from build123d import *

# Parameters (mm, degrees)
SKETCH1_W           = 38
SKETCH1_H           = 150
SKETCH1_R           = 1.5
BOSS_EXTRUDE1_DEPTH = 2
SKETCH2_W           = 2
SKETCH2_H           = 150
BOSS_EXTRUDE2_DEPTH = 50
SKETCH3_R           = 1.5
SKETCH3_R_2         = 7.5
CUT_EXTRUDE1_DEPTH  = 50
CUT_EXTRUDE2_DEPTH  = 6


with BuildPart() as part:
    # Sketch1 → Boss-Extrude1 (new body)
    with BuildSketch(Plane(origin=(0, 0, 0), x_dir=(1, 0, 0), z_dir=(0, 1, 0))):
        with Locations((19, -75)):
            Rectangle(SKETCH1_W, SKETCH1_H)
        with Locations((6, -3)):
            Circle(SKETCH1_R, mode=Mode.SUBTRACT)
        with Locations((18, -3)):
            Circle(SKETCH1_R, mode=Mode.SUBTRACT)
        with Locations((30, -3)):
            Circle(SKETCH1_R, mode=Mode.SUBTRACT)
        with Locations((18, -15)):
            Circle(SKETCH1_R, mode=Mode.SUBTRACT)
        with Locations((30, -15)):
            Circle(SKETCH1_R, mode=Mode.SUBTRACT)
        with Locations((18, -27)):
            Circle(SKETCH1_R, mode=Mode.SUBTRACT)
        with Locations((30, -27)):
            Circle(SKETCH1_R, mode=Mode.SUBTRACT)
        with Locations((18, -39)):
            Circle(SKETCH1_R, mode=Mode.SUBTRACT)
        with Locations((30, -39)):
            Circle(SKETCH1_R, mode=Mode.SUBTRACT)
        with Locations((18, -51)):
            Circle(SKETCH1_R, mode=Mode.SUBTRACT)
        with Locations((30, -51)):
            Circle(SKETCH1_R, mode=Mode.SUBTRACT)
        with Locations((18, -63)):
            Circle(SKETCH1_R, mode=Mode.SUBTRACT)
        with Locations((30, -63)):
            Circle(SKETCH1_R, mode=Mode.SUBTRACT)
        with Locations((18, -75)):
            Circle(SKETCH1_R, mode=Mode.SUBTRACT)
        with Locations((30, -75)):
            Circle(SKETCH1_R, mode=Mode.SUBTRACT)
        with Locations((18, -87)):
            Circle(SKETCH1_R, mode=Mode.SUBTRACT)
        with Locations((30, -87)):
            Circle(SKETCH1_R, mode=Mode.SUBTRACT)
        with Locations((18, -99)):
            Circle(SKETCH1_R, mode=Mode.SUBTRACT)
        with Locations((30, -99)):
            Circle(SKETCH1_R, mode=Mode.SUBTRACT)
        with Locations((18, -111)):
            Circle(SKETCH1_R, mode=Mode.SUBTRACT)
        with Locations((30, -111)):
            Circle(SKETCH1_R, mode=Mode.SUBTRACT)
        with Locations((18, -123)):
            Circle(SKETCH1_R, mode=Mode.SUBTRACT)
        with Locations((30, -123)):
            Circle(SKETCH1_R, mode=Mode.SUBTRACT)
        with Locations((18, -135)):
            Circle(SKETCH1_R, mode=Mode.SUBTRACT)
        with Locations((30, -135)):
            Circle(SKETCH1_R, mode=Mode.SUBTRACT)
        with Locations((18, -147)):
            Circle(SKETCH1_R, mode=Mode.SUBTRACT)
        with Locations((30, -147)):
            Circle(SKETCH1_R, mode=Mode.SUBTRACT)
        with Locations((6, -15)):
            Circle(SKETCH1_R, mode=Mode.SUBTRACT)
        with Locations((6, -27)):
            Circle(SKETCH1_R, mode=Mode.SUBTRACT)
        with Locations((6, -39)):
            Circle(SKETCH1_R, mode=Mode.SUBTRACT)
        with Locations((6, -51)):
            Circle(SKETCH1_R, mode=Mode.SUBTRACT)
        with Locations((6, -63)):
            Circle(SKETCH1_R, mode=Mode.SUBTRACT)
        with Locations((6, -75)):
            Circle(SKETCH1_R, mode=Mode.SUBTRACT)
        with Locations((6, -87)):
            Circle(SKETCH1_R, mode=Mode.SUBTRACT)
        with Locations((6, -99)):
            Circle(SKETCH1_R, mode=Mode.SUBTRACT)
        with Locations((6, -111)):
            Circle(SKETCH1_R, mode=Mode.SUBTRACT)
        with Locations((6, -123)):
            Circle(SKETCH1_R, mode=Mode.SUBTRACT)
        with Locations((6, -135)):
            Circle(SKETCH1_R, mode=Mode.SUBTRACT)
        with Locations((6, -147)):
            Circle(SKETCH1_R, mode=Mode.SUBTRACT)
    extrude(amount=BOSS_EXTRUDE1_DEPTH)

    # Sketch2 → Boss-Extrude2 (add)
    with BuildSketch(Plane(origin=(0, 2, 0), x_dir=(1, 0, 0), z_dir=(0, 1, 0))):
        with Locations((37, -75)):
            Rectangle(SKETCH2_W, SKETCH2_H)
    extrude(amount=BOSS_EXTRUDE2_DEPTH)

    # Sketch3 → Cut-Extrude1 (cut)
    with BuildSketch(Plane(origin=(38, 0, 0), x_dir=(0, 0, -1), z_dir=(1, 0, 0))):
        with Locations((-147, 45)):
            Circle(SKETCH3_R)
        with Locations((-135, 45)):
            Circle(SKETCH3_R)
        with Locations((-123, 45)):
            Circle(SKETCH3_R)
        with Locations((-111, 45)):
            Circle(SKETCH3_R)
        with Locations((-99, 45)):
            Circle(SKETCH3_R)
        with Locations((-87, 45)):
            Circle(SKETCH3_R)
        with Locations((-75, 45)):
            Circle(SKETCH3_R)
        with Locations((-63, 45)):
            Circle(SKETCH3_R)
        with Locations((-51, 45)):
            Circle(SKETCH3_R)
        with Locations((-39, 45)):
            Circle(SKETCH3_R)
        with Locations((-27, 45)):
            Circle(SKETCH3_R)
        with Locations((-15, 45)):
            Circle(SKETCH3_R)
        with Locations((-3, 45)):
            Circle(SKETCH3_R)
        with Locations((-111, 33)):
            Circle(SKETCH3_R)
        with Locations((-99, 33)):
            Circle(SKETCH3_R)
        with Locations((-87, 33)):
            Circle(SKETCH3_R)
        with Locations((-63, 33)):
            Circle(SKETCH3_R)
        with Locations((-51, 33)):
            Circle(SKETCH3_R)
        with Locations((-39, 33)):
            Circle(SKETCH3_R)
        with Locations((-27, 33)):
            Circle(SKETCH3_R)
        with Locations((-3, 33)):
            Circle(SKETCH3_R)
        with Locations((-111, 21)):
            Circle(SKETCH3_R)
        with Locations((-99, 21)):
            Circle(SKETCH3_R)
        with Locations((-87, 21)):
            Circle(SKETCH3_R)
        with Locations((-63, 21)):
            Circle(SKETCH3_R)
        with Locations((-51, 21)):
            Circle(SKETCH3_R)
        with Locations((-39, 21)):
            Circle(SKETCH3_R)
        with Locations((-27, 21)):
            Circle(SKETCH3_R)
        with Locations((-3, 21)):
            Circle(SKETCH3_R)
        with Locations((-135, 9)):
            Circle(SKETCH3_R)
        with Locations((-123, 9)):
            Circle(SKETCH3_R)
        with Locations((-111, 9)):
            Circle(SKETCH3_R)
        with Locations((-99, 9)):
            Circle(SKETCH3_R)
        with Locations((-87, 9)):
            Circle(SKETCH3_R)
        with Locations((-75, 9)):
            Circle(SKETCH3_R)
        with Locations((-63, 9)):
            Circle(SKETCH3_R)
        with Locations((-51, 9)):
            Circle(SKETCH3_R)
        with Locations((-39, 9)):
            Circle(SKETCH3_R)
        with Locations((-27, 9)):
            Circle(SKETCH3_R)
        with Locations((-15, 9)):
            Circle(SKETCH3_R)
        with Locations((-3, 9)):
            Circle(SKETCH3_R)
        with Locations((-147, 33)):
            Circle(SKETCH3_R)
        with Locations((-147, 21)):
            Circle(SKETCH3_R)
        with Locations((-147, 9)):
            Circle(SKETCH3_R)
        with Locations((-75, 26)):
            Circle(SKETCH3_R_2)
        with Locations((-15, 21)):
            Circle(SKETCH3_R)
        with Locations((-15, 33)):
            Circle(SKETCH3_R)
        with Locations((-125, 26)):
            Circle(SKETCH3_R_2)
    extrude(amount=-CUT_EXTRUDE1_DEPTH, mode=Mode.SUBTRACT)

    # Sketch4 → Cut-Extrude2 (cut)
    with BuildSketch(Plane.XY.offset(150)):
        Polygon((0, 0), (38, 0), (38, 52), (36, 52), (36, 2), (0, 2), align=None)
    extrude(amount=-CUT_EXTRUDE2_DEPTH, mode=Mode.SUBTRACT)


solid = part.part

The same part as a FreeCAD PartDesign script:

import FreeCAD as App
import Part
import Sketcher
Q = App.Units.Quantity

doc = App.newDocument("Part")
body = doc.addObject("PartDesign::Body", "Body")

# Sketch on XZ plane
sketch1 = body.newObject("Sketcher::SketchObject", "Sketch")
sketch1.AttachmentSupport = (doc.getObject("XZ_Plane"), [""])
sketch1.MapMode = "FlatFace"
sketch1.addGeometry(Part.LineSegment(App.Vector(0, 0, 0), App.Vector(0, 150, 0)), False)
sketch1.addGeometry(Part.LineSegment(App.Vector(0, 150, 0), App.Vector(38, 150, 0)), False)
sketch1.addGeometry(Part.LineSegment(App.Vector(38, 150, 0), App.Vector(38, 0, 0)), False)
sketch1.addGeometry(Part.LineSegment(App.Vector(38, 0, 0), App.Vector(0, 0, 0)), False)
sketch1.addGeometry(Part.Circle(App.Vector(6, 147, 0), App.Vector(0, 0, 1), 1.5), False)
sketch1.addGeometry(Part.Circle(App.Vector(6, 135, 0), App.Vector(0, 0, 1), 1.5), False)
sketch1.addGeometry(Part.Circle(App.Vector(6, 123, 0), App.Vector(0, 0, 1), 1.5), False)
sketch1.addGeometry(Part.Circle(App.Vector(6, 111, 0), App.Vector(0, 0, 1), 1.5), False)
sketch1.addGeometry(Part.Circle(App.Vector(6, 99, 0), App.Vector(0, 0, 1), 1.5), False)
sketch1.addGeometry(Part.Circle(App.Vector(6, 87, 0), App.Vector(0, 0, 1), 1.5), False)
sketch1.addGeometry(Part.Circle(App.Vector(18, 147, 0), App.Vector(0, 0, 1), 1.5), False)
sketch1.addGeometry(Part.Circle(App.Vector(18, 135, 0), App.Vector(0, 0, 1), 1.5), False)
sketch1.addGeometry(Part.Circle(App.Vector(18, 123, 0), App.Vector(0, 0, 1), 1.5), False)
sketch1.addGeometry(Part.Circle(App.Vector(30, 147, 0), App.Vector(0, 0, 1), 1.5), False)
sketch1.addGeometry(Part.Circle(App.Vector(30, 135, 0), App.Vector(0, 0, 1), 1.5), False)
sketch1.addGeometry(Part.Circle(App.Vector(30, 123, 0), App.Vector(0, 0, 1), 1.5), False)
sketch1.addGeometry(Part.Circle(App.Vector(18, 111, 0), App.Vector(0, 0, 1), 1.5), False)
sketch1.addGeometry(Part.Circle(App.Vector(18, 99, 0), App.Vector(0, 0, 1), 1.5), False)
sketch1.addGeometry(Part.Circle(App.Vector(18, 87, 0), App.Vector(0, 0, 1), 1.5), False)
sketch1.addGeometry(Part.Circle(App.Vector(30, 111, 0), App.Vector(0, 0, 1), 1.5), False)
sketch1.addGeometry(Part.Circle(App.Vector(30, 99, 0), App.Vector(0, 0, 1), 1.5), False)
sketch1.addGeometry(Part.Circle(App.Vector(30, 87, 0), App.Vector(0, 0, 1), 1.5), False)
sketch1.addGeometry(Part.Circle(App.Vector(6, 75, 0), App.Vector(0, 0, 1), 1.5), False)
sketch1.addGeometry(Part.Circle(App.Vector(6, 63, 0), App.Vector(0, 0, 1), 1.5), False)
sketch1.addGeometry(Part.Circle(App.Vector(6, 51, 0), App.Vector(0, 0, 1), 1.5), False)
sketch1.addGeometry(Part.Circle(App.Vector(6, 39, 0), App.Vector(0, 0, 1), 1.5), False)
sketch1.addGeometry(Part.Circle(App.Vector(6, 27, 0), App.Vector(0, 0, 1), 1.5), False)
sketch1.addGeometry(Part.Circle(App.Vector(6, 15, 0), App.Vector(0, 0, 1), 1.5), False)
sketch1.addGeometry(Part.Circle(App.Vector(6, 3, 0), App.Vector(0, 0, 1), 1.5), False)
sketch1.addGeometry(Part.Circle(App.Vector(18, 75, 0), App.Vector(0, 0, 1), 1.5), False)
sketch1.addGeometry(Part.Circle(App.Vector(18, 63, 0), App.Vector(0, 0, 1), 1.5), False)
sketch1.addGeometry(Part.Circle(App.Vector(18, 51, 0), App.Vector(0, 0, 1), 1.5), False)
sketch1.addGeometry(Part.Circle(App.Vector(18, 39, 0), App.Vector(0, 0, 1), 1.5), False)
sketch1.addGeometry(Part.Circle(App.Vector(30, 75, 0), App.Vector(0, 0, 1), 1.5), False)
sketch1.addGeometry(Part.Circle(App.Vector(30, 63, 0), App.Vector(0, 0, 1), 1.5), False)
sketch1.addGeometry(Part.Circle(App.Vector(30, 51, 0), App.Vector(0, 0, 1), 1.5), False)
sketch1.addGeometry(Part.Circle(App.Vector(30, 39, 0), App.Vector(0, 0, 1), 1.5), False)
sketch1.addGeometry(Part.Circle(App.Vector(18, 27, 0), App.Vector(0, 0, 1), 1.5), False)
sketch1.addGeometry(Part.Circle(App.Vector(18, 15, 0), App.Vector(0, 0, 1), 1.5), False)
sketch1.addGeometry(Part.Circle(App.Vector(18, 3, 0), App.Vector(0, 0, 1), 1.5), False)
sketch1.addGeometry(Part.Circle(App.Vector(30, 27, 0), App.Vector(0, 0, 1), 1.5), False)
sketch1.addGeometry(Part.Circle(App.Vector(30, 15, 0), App.Vector(0, 0, 1), 1.5), False)
sketch1.addGeometry(Part.Circle(App.Vector(30, 3, 0), App.Vector(0, 0, 1), 1.5), False)
sketch1.addConstraint(Sketcher.Constraint("Coincident", 0, 2, 1, 1))
sketch1.addConstraint(Sketcher.Constraint("Coincident", 1, 2, 2, 1))
sketch1.addConstraint(Sketcher.Constraint("Coincident", 2, 2, 3, 1))
sketch1.addConstraint(Sketcher.Constraint("Coincident", 3, 2, 0, 1))
sketch1.addConstraint(Sketcher.Constraint("Vertical", 0))
sketch1.addConstraint(Sketcher.Constraint("Horizontal", 1))
sketch1.addConstraint(Sketcher.Constraint("Vertical", 2))
sketch1.addConstraint(Sketcher.Constraint("Horizontal", 3))
sketch1.addConstraint(Sketcher.Constraint("Coincident", 3, 2, -1, 1))
sketch1.addConstraint(Sketcher.Constraint("Equal", 4, 5))
sketch1.addConstraint(Sketcher.Constraint("Equal", 5, 6))
sketch1.addConstraint(Sketcher.Constraint("Equal", 6, 7))
sketch1.addConstraint(Sketcher.Constraint("Equal", 7, 8))
sketch1.addConstraint(Sketcher.Constraint("Equal", 8, 9))
sketch1.addConstraint(Sketcher.Constraint("Equal", 9, 10))
sketch1.addConstraint(Sketcher.Constraint("Equal", 10, 11))
sketch1.addConstraint(Sketcher.Constraint("Equal", 11, 12))
sketch1.addConstraint(Sketcher.Constraint("Equal", 12, 13))
sketch1.addConstraint(Sketcher.Constraint("Equal", 13, 14))
sketch1.addConstraint(Sketcher.Constraint("Equal", 14, 15))
sketch1.addConstraint(Sketcher.Constraint("Equal", 15, 16))
sketch1.addConstraint(Sketcher.Constraint("Equal", 16, 17))
sketch1.addConstraint(Sketcher.Constraint("Equal", 17, 18))
sketch1.addConstraint(Sketcher.Constraint("Equal", 18, 19))
sketch1.addConstraint(Sketcher.Constraint("Equal", 19, 20))
sketch1.addConstraint(Sketcher.Constraint("Equal", 20, 21))
sketch1.addConstraint(Sketcher.Constraint("Equal", 21, 22))
sketch1.addConstraint(Sketcher.Constraint("Equal", 22, 23))
sketch1.addConstraint(Sketcher.Constraint("Equal", 23, 24))
sketch1.addConstraint(Sketcher.Constraint("Equal", 24, 25))
sketch1.addConstraint(Sketcher.Constraint("Equal", 25, 26))
sketch1.addConstraint(Sketcher.Constraint("Equal", 26, 27))
sketch1.addConstraint(Sketcher.Constraint("Equal", 27, 28))
sketch1.addConstraint(Sketcher.Constraint("Equal", 28, 29))
sketch1.addConstraint(Sketcher.Constraint("Equal", 29, 30))
sketch1.addConstraint(Sketcher.Constraint("Equal", 30, 31))
sketch1.addConstraint(Sketcher.Constraint("Equal", 31, 32))
sketch1.addConstraint(Sketcher.Constraint("Equal", 32, 33))
sketch1.addConstraint(Sketcher.Constraint("Equal", 33, 34))
sketch1.addConstraint(Sketcher.Constraint("Equal", 34, 35))
sketch1.addConstraint(Sketcher.Constraint("Equal", 35, 36))
sketch1.addConstraint(Sketcher.Constraint("Equal", 36, 37))
sketch1.addConstraint(Sketcher.Constraint("Equal", 37, 38))
sketch1.addConstraint(Sketcher.Constraint("Equal", 38, 39))
sketch1.addConstraint(Sketcher.Constraint("Equal", 39, 40))
sketch1.addConstraint(Sketcher.Constraint("Equal", 40, 41))
sketch1.addConstraint(Sketcher.Constraint("Equal", 41, 42))
sketch1.addConstraint(Sketcher.Constraint("Horizontal", 4, 3, 10, 3))
sketch1.addConstraint(Sketcher.Constraint("Horizontal", 5, 3, 11, 3))
sketch1.addConstraint(Sketcher.Constraint("Horizontal", 6, 3, 12, 3))
sketch1.addConstraint(Sketcher.Constraint("Horizontal", 10, 3, 13, 3))
sketch1.addConstraint(Sketcher.Constraint("Horizontal", 11, 3, 14, 3))
sketch1.addConstraint(Sketcher.Constraint("Horizontal", 12, 3, 15, 3))
sketch1.addConstraint(Sketcher.Constraint("Horizontal", 7, 3, 16, 3))
sketch1.addConstraint(Sketcher.Constraint("Horizontal", 8, 3, 17, 3))
sketch1.addConstraint(Sketcher.Constraint("Horizontal", 9, 3, 18, 3))
sketch1.addConstraint(Sketcher.Constraint("Horizontal", 16, 3, 19, 3))
sketch1.addConstraint(Sketcher.Constraint("Horizontal", 17, 3, 20, 3))
sketch1.addConstraint(Sketcher.Constraint("Horizontal", 18, 3, 21, 3))
sketch1.addConstraint(Sketcher.Constraint("Horizontal", 22, 3, 29, 3))
sketch1.addConstraint(Sketcher.Constraint("Horizontal", 23, 3, 30, 3))
sketch1.addConstraint(Sketcher.Constraint("Horizontal", 24, 3, 31, 3))
sketch1.addConstraint(Sketcher.Constraint("Horizontal", 25, 3, 32, 3))
sketch1.addConstraint(Sketcher.Constraint("Horizontal", 29, 3, 33, 3))
sketch1.addConstraint(Sketcher.Constraint("Horizontal", 30, 3, 34, 3))
sketch1.addConstraint(Sketcher.Constraint("Horizontal", 31, 3, 35, 3))
sketch1.addConstraint(Sketcher.Constraint("Horizontal", 32, 3, 36, 3))
sketch1.addConstraint(Sketcher.Constraint("Horizontal", 26, 3, 37, 3))
sketch1.addConstraint(Sketcher.Constraint("Horizontal", 27, 3, 38, 3))
sketch1.addConstraint(Sketcher.Constraint("Horizontal", 28, 3, 39, 3))
sketch1.addConstraint(Sketcher.Constraint("Horizontal", 37, 3, 40, 3))
sketch1.addConstraint(Sketcher.Constraint("Horizontal", 38, 3, 41, 3))
sketch1.addConstraint(Sketcher.Constraint("Horizontal", 39, 3, 42, 3))
sketch1.addConstraint(Sketcher.Constraint("Vertical", 4, 3, 5, 3))
sketch1.addConstraint(Sketcher.Constraint("Vertical", 5, 3, 6, 3))
sketch1.addConstraint(Sketcher.Constraint("Vertical", 6, 3, 7, 3))
sketch1.addConstraint(Sketcher.Constraint("Vertical", 7, 3, 8, 3))
sketch1.addConstraint(Sketcher.Constraint("Vertical", 8, 3, 9, 3))
sketch1.addConstraint(Sketcher.Constraint("Vertical", 10, 3, 11, 3))
sketch1.addConstraint(Sketcher.Constraint("Vertical", 11, 3, 12, 3))
sketch1.addConstraint(Sketcher.Constraint("Vertical", 13, 3, 14, 3))
sketch1.addConstraint(Sketcher.Constraint("Vertical", 14, 3, 15, 3))
sketch1.addConstraint(Sketcher.Constraint("Vertical", 12, 3, 16, 3))
sketch1.addConstraint(Sketcher.Constraint("Vertical", 16, 3, 17, 3))
sketch1.addConstraint(Sketcher.Constraint("Vertical", 17, 3, 18, 3))
sketch1.addConstraint(Sketcher.Constraint("Vertical", 15, 3, 19, 3))
sketch1.addConstraint(Sketcher.Constraint("Vertical", 19, 3, 20, 3))
sketch1.addConstraint(Sketcher.Constraint("Vertical", 20, 3, 21, 3))
sketch1.addConstraint(Sketcher.Constraint("Vertical", 9, 3, 22, 3))
sketch1.addConstraint(Sketcher.Constraint("Vertical", 22, 3, 23, 3))
sketch1.addConstraint(Sketcher.Constraint("Vertical", 23, 3, 24, 3))
sketch1.addConstraint(Sketcher.Constraint("Vertical", 24, 3, 25, 3))
sketch1.addConstraint(Sketcher.Constraint("Vertical", 25, 3, 26, 3))
sketch1.addConstraint(Sketcher.Constraint("Vertical", 26, 3, 27, 3))
sketch1.addConstraint(Sketcher.Constraint("Vertical", 27, 3, 28, 3))
sketch1.addConstraint(Sketcher.Constraint("Vertical", 18, 3, 29, 3))
sketch1.addConstraint(Sketcher.Constraint("Vertical", 29, 3, 30, 3))
sketch1.addConstraint(Sketcher.Constraint("Vertical", 30, 3, 31, 3))
sketch1.addConstraint(Sketcher.Constraint("Vertical", 31, 3, 32, 3))
sketch1.addConstraint(Sketcher.Constraint("Vertical", 21, 3, 33, 3))
sketch1.addConstraint(Sketcher.Constraint("Vertical", 33, 3, 34, 3))
sketch1.addConstraint(Sketcher.Constraint("Vertical", 34, 3, 35, 3))
sketch1.addConstraint(Sketcher.Constraint("Vertical", 35, 3, 36, 3))
sketch1.addConstraint(Sketcher.Constraint("Vertical", 32, 3, 37, 3))
sketch1.addConstraint(Sketcher.Constraint("Vertical", 37, 3, 38, 3))
sketch1.addConstraint(Sketcher.Constraint("Vertical", 38, 3, 39, 3))
sketch1.addConstraint(Sketcher.Constraint("Vertical", 36, 3, 40, 3))
sketch1.addConstraint(Sketcher.Constraint("Vertical", 40, 3, 41, 3))
sketch1.addConstraint(Sketcher.Constraint("Vertical", 41, 3, 42, 3))
sketch1.addConstraint(Sketcher.Constraint("Diameter", 4, Q("3 mm")))
sketch1.addConstraint(Sketcher.Constraint("DistanceX", 1, 1, 1, 2, Q("38 mm")))
sketch1.addConstraint(Sketcher.Constraint("DistanceY", 0, 1, 0, 2, Q("150 mm")))
sketch1.addConstraint(Sketcher.Constraint("DistanceX", -1, 1, 4, 3, Q("6 mm")))
sketch1.addConstraint(Sketcher.Constraint("DistanceY", -1, 1, 4, 3, Q("147 mm")))
sketch1.addConstraint(Sketcher.Constraint("DistanceY", -1, 1, 5, 3, Q("135 mm")))
sketch1.addConstraint(Sketcher.Constraint("DistanceY", -1, 1, 6, 3, Q("123 mm")))
sketch1.addConstraint(Sketcher.Constraint("DistanceY", -1, 1, 7, 3, Q("111 mm")))
sketch1.addConstraint(Sketcher.Constraint("DistanceY", -1, 1, 8, 3, Q("99 mm")))
sketch1.addConstraint(Sketcher.Constraint("DistanceY", -1, 1, 9, 3, Q("87 mm")))
sketch1.addConstraint(Sketcher.Constraint("DistanceX", -1, 1, 10, 3, Q("18 mm")))
sketch1.addConstraint(Sketcher.Constraint("DistanceX", -1, 1, 13, 3, Q("30 mm")))
sketch1.addConstraint(Sketcher.Constraint("DistanceY", -1, 1, 22, 3, Q("75 mm")))
sketch1.addConstraint(Sketcher.Constraint("DistanceY", -1, 1, 23, 3, Q("63 mm")))
sketch1.addConstraint(Sketcher.Constraint("DistanceY", -1, 1, 24, 3, Q("51 mm")))
sketch1.addConstraint(Sketcher.Constraint("DistanceY", -1, 1, 25, 3, Q("39 mm")))
sketch1.addConstraint(Sketcher.Constraint("DistanceY", -1, 1, 26, 3, Q("27 mm")))
sketch1.addConstraint(Sketcher.Constraint("DistanceY", -1, 1, 27, 3, Q("15 mm")))
sketch1.addConstraint(Sketcher.Constraint("DistanceY", -1, 1, 28, 3, Q("3 mm")))
pad1 = body.newObject("PartDesign::Pad", "Pad")
pad1.Profile = sketch1
pad1.Length = 2
pad1.Reversed = True

# Sketch on XZ plane
sketch2 = body.newObject("Sketcher::SketchObject", "Sketch001")
sketch2.AttachmentSupport = (doc.getObject("XZ_Plane"), [""])
sketch2.MapMode = "FlatFace"
sketch2.AttachmentOffset = App.Placement(App.Vector(0, 0, -2), App.Rotation())
sketch2.addGeometry(Part.LineSegment(App.Vector(36, 0, 0), App.Vector(36, 150, 0)), False)
sketch2.addGeometry(Part.LineSegment(App.Vector(36, 150, 0), App.Vector(38, 150, 0)), False)
sketch2.addGeometry(Part.LineSegment(App.Vector(38, 150, 0), App.Vector(38, 0, 0)), False)
sketch2.addGeometry(Part.LineSegment(App.Vector(38, 0, 0), App.Vector(36, 0, 0)), False)
sketch2.addConstraint(Sketcher.Constraint("Coincident", 0, 2, 1, 1))
sketch2.addConstraint(Sketcher.Constraint("Coincident", 1, 2, 2, 1))
sketch2.addConstraint(Sketcher.Constraint("Coincident", 2, 2, 3, 1))
sketch2.addConstraint(Sketcher.Constraint("Coincident", 3, 2, 0, 1))
sketch2.addConstraint(Sketcher.Constraint("Vertical", 0))
sketch2.addConstraint(Sketcher.Constraint("Horizontal", 1))
sketch2.addConstraint(Sketcher.Constraint("Vertical", 2))
sketch2.addConstraint(Sketcher.Constraint("Horizontal", 3))
sketch2.addConstraint(Sketcher.Constraint("PointOnObject", 2, 2, -1))
sketch2.addConstraint(Sketcher.Constraint("DistanceX", 1, 1, 1, 2, Q("2 mm")))
sketch2.addConstraint(Sketcher.Constraint("DistanceY", 0, 1, 0, 2, Q("150 mm")))
sketch2.addConstraint(Sketcher.Constraint("DistanceX", -1, 1, 0, 2, Q("36 mm")))
pad2 = body.newObject("PartDesign::Pad", "Pad001")
pad2.Profile = sketch2
pad2.Length = 50
pad2.Reversed = True

# Sketch on YZ plane
sketch3 = body.newObject("Sketcher::SketchObject", "Sketch002")
sketch3.AttachmentSupport = (doc.getObject("YZ_Plane"), [""])
sketch3.MapMode = "FlatFace"
sketch3.AttachmentOffset = App.Placement(App.Vector(0, 0, 38), App.Rotation())
sketch3.addGeometry(Part.Circle(App.Vector(45, 147, 0), App.Vector(0, 0, 1), 1.5), False)
sketch3.addGeometry(Part.Circle(App.Vector(45, 135, 0), App.Vector(0, 0, 1), 1.5), False)
sketch3.addGeometry(Part.Circle(App.Vector(45, 123, 0), App.Vector(0, 0, 1), 1.5), False)
sketch3.addGeometry(Part.Circle(App.Vector(45, 111, 0), App.Vector(0, 0, 1), 1.5), False)
sketch3.addGeometry(Part.Circle(App.Vector(45, 99, 0), App.Vector(0, 0, 1), 1.5), False)
sketch3.addGeometry(Part.Circle(App.Vector(45, 87, 0), App.Vector(0, 0, 1), 1.5), False)
sketch3.addGeometry(Part.Circle(App.Vector(45, 75, 0), App.Vector(0, 0, 1), 1.5), False)
sketch3.addGeometry(Part.Circle(App.Vector(45, 63, 0), App.Vector(0, 0, 1), 1.5), False)
sketch3.addGeometry(Part.Circle(App.Vector(45, 51, 0), App.Vector(0, 0, 1), 1.5), False)
sketch3.addGeometry(Part.Circle(App.Vector(45, 39, 0), App.Vector(0, 0, 1), 1.5), False)
sketch3.addGeometry(Part.Circle(App.Vector(45, 27, 0), App.Vector(0, 0, 1), 1.5), False)
sketch3.addGeometry(Part.Circle(App.Vector(45, 15, 0), App.Vector(0, 0, 1), 1.5), False)
sketch3.addGeometry(Part.Circle(App.Vector(45, 3, 0), App.Vector(0, 0, 1), 1.5), False)
sketch3.addGeometry(Part.Circle(App.Vector(33, 111, 0), App.Vector(0, 0, 1), 1.5), False)
sketch3.addGeometry(Part.Circle(App.Vector(33, 99, 0), App.Vector(0, 0, 1), 1.5), False)
sketch3.addGeometry(Part.Circle(App.Vector(33, 87, 0), App.Vector(0, 0, 1), 1.5), False)
sketch3.addGeometry(Part.Circle(App.Vector(33, 63, 0), App.Vector(0, 0, 1), 1.5), False)
sketch3.addGeometry(Part.Circle(App.Vector(33, 51, 0), App.Vector(0, 0, 1), 1.5), False)
sketch3.addGeometry(Part.Circle(App.Vector(33, 39, 0), App.Vector(0, 0, 1), 1.5), False)
sketch3.addGeometry(Part.Circle(App.Vector(33, 27, 0), App.Vector(0, 0, 1), 1.5), False)
sketch3.addGeometry(Part.Circle(App.Vector(33, 3, 0), App.Vector(0, 0, 1), 1.5), False)
sketch3.addGeometry(Part.Circle(App.Vector(21, 111, 0), App.Vector(0, 0, 1), 1.5), False)
sketch3.addGeometry(Part.Circle(App.Vector(21, 99, 0), App.Vector(0, 0, 1), 1.5), False)
sketch3.addGeometry(Part.Circle(App.Vector(21, 87, 0), App.Vector(0, 0, 1), 1.5), False)
sketch3.addGeometry(Part.Circle(App.Vector(21, 63, 0), App.Vector(0, 0, 1), 1.5), False)
sketch3.addGeometry(Part.Circle(App.Vector(21, 51, 0), App.Vector(0, 0, 1), 1.5), False)
sketch3.addGeometry(Part.Circle(App.Vector(21, 39, 0), App.Vector(0, 0, 1), 1.5), False)
sketch3.addGeometry(Part.Circle(App.Vector(21, 27, 0), App.Vector(0, 0, 1), 1.5), False)
sketch3.addGeometry(Part.Circle(App.Vector(21, 3, 0), App.Vector(0, 0, 1), 1.5), False)
sketch3.addGeometry(Part.Circle(App.Vector(9, 135, 0), App.Vector(0, 0, 1), 1.5), False)
sketch3.addGeometry(Part.Circle(App.Vector(9, 123, 0), App.Vector(0, 0, 1), 1.5), False)
sketch3.addGeometry(Part.Circle(App.Vector(9, 111, 0), App.Vector(0, 0, 1), 1.5), False)
sketch3.addGeometry(Part.Circle(App.Vector(9, 99, 0), App.Vector(0, 0, 1), 1.5), False)
sketch3.addGeometry(Part.Circle(App.Vector(9, 87, 0), App.Vector(0, 0, 1), 1.5), False)
sketch3.addGeometry(Part.Circle(App.Vector(9, 75, 0), App.Vector(0, 0, 1), 1.5), False)
sketch3.addGeometry(Part.Circle(App.Vector(9, 63, 0), App.Vector(0, 0, 1), 1.5), False)
sketch3.addGeometry(Part.Circle(App.Vector(9, 51, 0), App.Vector(0, 0, 1), 1.5), False)
sketch3.addGeometry(Part.Circle(App.Vector(9, 39, 0), App.Vector(0, 0, 1), 1.5), False)
sketch3.addGeometry(Part.Circle(App.Vector(9, 27, 0), App.Vector(0, 0, 1), 1.5), False)
sketch3.addGeometry(Part.Circle(App.Vector(9, 15, 0), App.Vector(0, 0, 1), 1.5), False)
sketch3.addGeometry(Part.Circle(App.Vector(9, 3, 0), App.Vector(0, 0, 1), 1.5), False)
sketch3.addGeometry(Part.Circle(App.Vector(33, 147, 0), App.Vector(0, 0, 1), 1.5), False)
sketch3.addGeometry(Part.Circle(App.Vector(21, 147, 0), App.Vector(0, 0, 1), 1.5), False)
sketch3.addGeometry(Part.Circle(App.Vector(9, 147, 0), App.Vector(0, 0, 1), 1.5), False)
sketch3.addGeometry(Part.Circle(App.Vector(26, 75, 0), App.Vector(0, 0, 1), 7.5), False)
sketch3.addGeometry(Part.Circle(App.Vector(21, 15, 0), App.Vector(0, 0, 1), 1.5), False)
sketch3.addGeometry(Part.Circle(App.Vector(33, 15, 0), App.Vector(0, 0, 1), 1.5), False)
sketch3.addGeometry(Part.Circle(App.Vector(26, 125, 0), App.Vector(0, 0, 1), 7.5), False)
sketch3.addConstraint(Sketcher.Constraint("Equal", 0, 1))
sketch3.addConstraint(Sketcher.Constraint("Equal", 1, 2))
sketch3.addConstraint(Sketcher.Constraint("Equal", 2, 3))
sketch3.addConstraint(Sketcher.Constraint("Equal", 3, 4))
sketch3.addConstraint(Sketcher.Constraint("Equal", 4, 5))
sketch3.addConstraint(Sketcher.Constraint("Equal", 5, 6))
sketch3.addConstraint(Sketcher.Constraint("Equal", 6, 7))
sketch3.addConstraint(Sketcher.Constraint("Equal", 7, 8))
sketch3.addConstraint(Sketcher.Constraint("Equal", 8, 9))
sketch3.addConstraint(Sketcher.Constraint("Equal", 9, 10))
sketch3.addConstraint(Sketcher.Constraint("Equal", 10, 11))
sketch3.addConstraint(Sketcher.Constraint("Equal", 11, 12))
sketch3.addConstraint(Sketcher.Constraint("Equal", 12, 13))
sketch3.addConstraint(Sketcher.Constraint("Equal", 13, 14))
sketch3.addConstraint(Sketcher.Constraint("Equal", 14, 15))
sketch3.addConstraint(Sketcher.Constraint("Equal", 15, 16))
sketch3.addConstraint(Sketcher.Constraint("Equal", 16, 17))
sketch3.addConstraint(Sketcher.Constraint("Equal", 17, 18))
sketch3.addConstraint(Sketcher.Constraint("Equal", 18, 19))
sketch3.addConstraint(Sketcher.Constraint("Equal", 19, 20))
sketch3.addConstraint(Sketcher.Constraint("Equal", 20, 21))
sketch3.addConstraint(Sketcher.Constraint("Equal", 21, 22))
sketch3.addConstraint(Sketcher.Constraint("Equal", 22, 23))
sketch3.addConstraint(Sketcher.Constraint("Equal", 23, 24))
sketch3.addConstraint(Sketcher.Constraint("Equal", 24, 25))
sketch3.addConstraint(Sketcher.Constraint("Equal", 25, 26))
sketch3.addConstraint(Sketcher.Constraint("Equal", 26, 27))
sketch3.addConstraint(Sketcher.Constraint("Equal", 27, 28))
sketch3.addConstraint(Sketcher.Constraint("Equal", 28, 29))
sketch3.addConstraint(Sketcher.Constraint("Equal", 29, 30))
sketch3.addConstraint(Sketcher.Constraint("Equal", 30, 31))
sketch3.addConstraint(Sketcher.Constraint("Equal", 31, 32))
sketch3.addConstraint(Sketcher.Constraint("Equal", 32, 33))
sketch3.addConstraint(Sketcher.Constraint("Equal", 33, 34))
sketch3.addConstraint(Sketcher.Constraint("Equal", 34, 35))
sketch3.addConstraint(Sketcher.Constraint("Equal", 35, 36))
sketch3.addConstraint(Sketcher.Constraint("Equal", 36, 37))
sketch3.addConstraint(Sketcher.Constraint("Equal", 37, 38))
sketch3.addConstraint(Sketcher.Constraint("Equal", 38, 39))
sketch3.addConstraint(Sketcher.Constraint("Equal", 39, 40))
sketch3.addConstraint(Sketcher.Constraint("Equal", 40, 41))
sketch3.addConstraint(Sketcher.Constraint("Equal", 41, 42))
sketch3.addConstraint(Sketcher.Constraint("Equal", 42, 43))
sketch3.addConstraint(Sketcher.Constraint("Equal", 43, 45))
sketch3.addConstraint(Sketcher.Constraint("Equal", 45, 46))
sketch3.addConstraint(Sketcher.Constraint("Equal", 44, 47))
sketch3.addConstraint(Sketcher.Constraint("Horizontal", 3, 3, 13, 3))
sketch3.addConstraint(Sketcher.Constraint("Horizontal", 4, 3, 14, 3))
sketch3.addConstraint(Sketcher.Constraint("Horizontal", 5, 3, 15, 3))
sketch3.addConstraint(Sketcher.Constraint("Horizontal", 7, 3, 16, 3))
sketch3.addConstraint(Sketcher.Constraint("Horizontal", 8, 3, 17, 3))
sketch3.addConstraint(Sketcher.Constraint("Horizontal", 9, 3, 18, 3))
sketch3.addConstraint(Sketcher.Constraint("Horizontal", 10, 3, 19, 3))
sketch3.addConstraint(Sketcher.Constraint("Horizontal", 12, 3, 20, 3))
sketch3.addConstraint(Sketcher.Constraint("Horizontal", 13, 3, 21, 3))
sketch3.addConstraint(Sketcher.Constraint("Horizontal", 14, 3, 22, 3))
sketch3.addConstraint(Sketcher.Constraint("Horizontal", 15, 3, 23, 3))
sketch3.addConstraint(Sketcher.Constraint("Horizontal", 16, 3, 24, 3))
sketch3.addConstraint(Sketcher.Constraint("Horizontal", 17, 3, 25, 3))
sketch3.addConstraint(Sketcher.Constraint("Horizontal", 18, 3, 26, 3))
sketch3.addConstraint(Sketcher.Constraint("Horizontal", 19, 3, 27, 3))
sketch3.addConstraint(Sketcher.Constraint("Horizontal", 20, 3, 28, 3))
sketch3.addConstraint(Sketcher.Constraint("Horizontal", 1, 3, 29, 3))
sketch3.addConstraint(Sketcher.Constraint("Horizontal", 2, 3, 30, 3))
sketch3.addConstraint(Sketcher.Constraint("Horizontal", 21, 3, 31, 3))
sketch3.addConstraint(Sketcher.Constraint("Horizontal", 22, 3, 32, 3))
sketch3.addConstraint(Sketcher.Constraint("Horizontal", 23, 3, 33, 3))
sketch3.addConstraint(Sketcher.Constraint("Horizontal", 6, 3, 34, 3))
sketch3.addConstraint(Sketcher.Constraint("Horizontal", 24, 3, 35, 3))
sketch3.addConstraint(Sketcher.Constraint("Horizontal", 25, 3, 36, 3))
sketch3.addConstraint(Sketcher.Constraint("Horizontal", 26, 3, 37, 3))
sketch3.addConstraint(Sketcher.Constraint("Horizontal", 27, 3, 38, 3))
sketch3.addConstraint(Sketcher.Constraint("Horizontal", 11, 3, 39, 3))
sketch3.addConstraint(Sketcher.Constraint("Horizontal", 28, 3, 40, 3))
sketch3.addConstraint(Sketcher.Constraint("Horizontal", 0, 3, 41, 3))
sketch3.addConstraint(Sketcher.Constraint("Horizontal", 41, 3, 42, 3))
sketch3.addConstraint(Sketcher.Constraint("Horizontal", 42, 3, 43, 3))
sketch3.addConstraint(Sketcher.Constraint("Horizontal", 34, 3, 44, 3))
sketch3.addConstraint(Sketcher.Constraint("Horizontal", 39, 3, 45, 3))
sketch3.addConstraint(Sketcher.Constraint("Horizontal", 45, 3, 46, 3))
sketch3.addConstraint(Sketcher.Constraint("Vertical", 0, 3, 1, 3))
sketch3.addConstraint(Sketcher.Constraint("Vertical", 1, 3, 2, 3))
sketch3.addConstraint(Sketcher.Constraint("Vertical", 2, 3, 3, 3))
sketch3.addConstraint(Sketcher.Constraint("Vertical", 3, 3, 4, 3))
sketch3.addConstraint(Sketcher.Constraint("Vertical", 4, 3, 5, 3))
sketch3.addConstraint(Sketcher.Constraint("Vertical", 5, 3, 6, 3))
sketch3.addConstraint(Sketcher.Constraint("Vertical", 6, 3, 7, 3))
sketch3.addConstraint(Sketcher.Constraint("Vertical", 7, 3, 8, 3))
sketch3.addConstraint(Sketcher.Constraint("Vertical", 8, 3, 9, 3))
sketch3.addConstraint(Sketcher.Constraint("Vertical", 9, 3, 10, 3))
sketch3.addConstraint(Sketcher.Constraint("Vertical", 10, 3, 11, 3))
sketch3.addConstraint(Sketcher.Constraint("Vertical", 11, 3, 12, 3))
sketch3.addConstraint(Sketcher.Constraint("Vertical", 13, 3, 14, 3))
sketch3.addConstraint(Sketcher.Constraint("Vertical", 14, 3, 15, 3))
sketch3.addConstraint(Sketcher.Constraint("Vertical", 15, 3, 16, 3))
sketch3.addConstraint(Sketcher.Constraint("Vertical", 16, 3, 17, 3))
sketch3.addConstraint(Sketcher.Constraint("Vertical", 17, 3, 18, 3))
sketch3.addConstraint(Sketcher.Constraint("Vertical", 18, 3, 19, 3))
sketch3.addConstraint(Sketcher.Constraint("Vertical", 19, 3, 20, 3))
sketch3.addConstraint(Sketcher.Constraint("Vertical", 21, 3, 22, 3))
sketch3.addConstraint(Sketcher.Constraint("Vertical", 22, 3, 23, 3))
sketch3.addConstraint(Sketcher.Constraint("Vertical", 23, 3, 24, 3))
sketch3.addConstraint(Sketcher.Constraint("Vertical", 24, 3, 25, 3))
sketch3.addConstraint(Sketcher.Constraint("Vertical", 25, 3, 26, 3))
sketch3.addConstraint(Sketcher.Constraint("Vertical", 26, 3, 27, 3))
sketch3.addConstraint(Sketcher.Constraint("Vertical", 27, 3, 28, 3))
sketch3.addConstraint(Sketcher.Constraint("Vertical", 29, 3, 30, 3))
sketch3.addConstraint(Sketcher.Constraint("Vertical", 30, 3, 31, 3))
sketch3.addConstraint(Sketcher.Constraint("Vertical", 31, 3, 32, 3))
sketch3.addConstraint(Sketcher.Constraint("Vertical", 32, 3, 33, 3))
sketch3.addConstraint(Sketcher.Constraint("Vertical", 33, 3, 34, 3))
sketch3.addConstraint(Sketcher.Constraint("Vertical", 34, 3, 35, 3))
sketch3.addConstraint(Sketcher.Constraint("Vertical", 35, 3, 36, 3))
sketch3.addConstraint(Sketcher.Constraint("Vertical", 36, 3, 37, 3))
sketch3.addConstraint(Sketcher.Constraint("Vertical", 37, 3, 38, 3))
sketch3.addConstraint(Sketcher.Constraint("Vertical", 38, 3, 39, 3))
sketch3.addConstraint(Sketcher.Constraint("Vertical", 39, 3, 40, 3))
sketch3.addConstraint(Sketcher.Constraint("Vertical", 20, 3, 41, 3))
sketch3.addConstraint(Sketcher.Constraint("Vertical", 28, 3, 42, 3))
sketch3.addConstraint(Sketcher.Constraint("Vertical", 40, 3, 43, 3))
sketch3.addConstraint(Sketcher.Constraint("Vertical", 42, 3, 45, 3))
sketch3.addConstraint(Sketcher.Constraint("Vertical", 41, 3, 46, 3))
sketch3.addConstraint(Sketcher.Constraint("Vertical", 44, 3, 47, 3))
sketch3.addConstraint(Sketcher.Constraint("Diameter", 0, Q("3 mm")))
sketch3.addConstraint(Sketcher.Constraint("Diameter", 44, Q("15 mm")))
sketch3.addConstraint(Sketcher.Constraint("DistanceX", -1, 1, 0, 3, Q("45 mm")))
sketch3.addConstraint(Sketcher.Constraint("DistanceY", -1, 1, 0, 3, Q("147 mm")))
sketch3.addConstraint(Sketcher.Constraint("DistanceY", -1, 1, 1, 3, Q("135 mm")))
sketch3.addConstraint(Sketcher.Constraint("DistanceY", -1, 1, 2, 3, Q("123 mm")))
sketch3.addConstraint(Sketcher.Constraint("DistanceY", -1, 1, 3, 3, Q("111 mm")))
sketch3.addConstraint(Sketcher.Constraint("DistanceY", -1, 1, 4, 3, Q("99 mm")))
sketch3.addConstraint(Sketcher.Constraint("DistanceY", -1, 1, 5, 3, Q("87 mm")))
sketch3.addConstraint(Sketcher.Constraint("DistanceY", -1, 1, 6, 3, Q("75 mm")))
sketch3.addConstraint(Sketcher.Constraint("DistanceY", -1, 1, 7, 3, Q("63 mm")))
sketch3.addConstraint(Sketcher.Constraint("DistanceY", -1, 1, 8, 3, Q("51 mm")))
sketch3.addConstraint(Sketcher.Constraint("DistanceY", -1, 1, 9, 3, Q("39 mm")))
sketch3.addConstraint(Sketcher.Constraint("DistanceY", -1, 1, 10, 3, Q("27 mm")))
sketch3.addConstraint(Sketcher.Constraint("DistanceY", -1, 1, 11, 3, Q("15 mm")))
sketch3.addConstraint(Sketcher.Constraint("DistanceY", -1, 1, 12, 3, Q("3 mm")))
sketch3.addConstraint(Sketcher.Constraint("DistanceX", -1, 1, 13, 3, Q("33 mm")))
sketch3.addConstraint(Sketcher.Constraint("DistanceX", -1, 1, 21, 3, Q("21 mm")))
sketch3.addConstraint(Sketcher.Constraint("DistanceX", -1, 1, 29, 3, Q("9 mm")))
sketch3.addConstraint(Sketcher.Constraint("DistanceX", -1, 1, 44, 3, Q("26 mm")))
sketch3.addConstraint(Sketcher.Constraint("DistanceY", -1, 1, 47, 3, Q("125 mm")))
pocket1 = body.newObject("PartDesign::Pocket", "Pocket")
pocket1.Profile = sketch3
pocket1.Length = 50

# Sketch on XY plane
sketch4 = body.newObject("Sketcher::SketchObject", "Sketch003")
sketch4.AttachmentSupport = (doc.getObject("XY_Plane"), [""])
sketch4.MapMode = "FlatFace"
sketch4.AttachmentOffset = App.Placement(App.Vector(0, 0, 150), App.Rotation())
sketch4.addGeometry(Part.LineSegment(App.Vector(0, 0, 0), App.Vector(38, 0, 0)), False)
sketch4.addGeometry(Part.LineSegment(App.Vector(38, 0, 0), App.Vector(38, 52, 0)), False)
sketch4.addGeometry(Part.LineSegment(App.Vector(38, 52, 0), App.Vector(36, 52, 0)), False)
sketch4.addGeometry(Part.LineSegment(App.Vector(36, 52, 0), App.Vector(36, 2, 0)), False)
sketch4.addGeometry(Part.LineSegment(App.Vector(36, 2, 0), App.Vector(0, 2, 0)), False)
sketch4.addGeometry(Part.LineSegment(App.Vector(0, 2, 0), App.Vector(0, 0, 0)), False)
sketch4.addConstraint(Sketcher.Constraint("Coincident", 0, 2, 1, 1))
sketch4.addConstraint(Sketcher.Constraint("Coincident", 1, 2, 2, 1))
sketch4.addConstraint(Sketcher.Constraint("Coincident", 2, 2, 3, 1))
sketch4.addConstraint(Sketcher.Constraint("Coincident", 3, 2, 4, 1))
sketch4.addConstraint(Sketcher.Constraint("Coincident", 4, 2, 5, 1))
sketch4.addConstraint(Sketcher.Constraint("Coincident", 5, 2, 0, 1))
sketch4.addConstraint(Sketcher.Constraint("Horizontal", 0))
sketch4.addConstraint(Sketcher.Constraint("Vertical", 1))
sketch4.addConstraint(Sketcher.Constraint("Horizontal", 2))
sketch4.addConstraint(Sketcher.Constraint("Vertical", 3))
sketch4.addConstraint(Sketcher.Constraint("Horizontal", 4))
sketch4.addConstraint(Sketcher.Constraint("Vertical", 5))
sketch4.addConstraint(Sketcher.Constraint("Coincident", 5, 2, -1, 1))
sketch4.addConstraint(Sketcher.Constraint("Equal", 2, 5))
sketch4.addConstraint(Sketcher.Constraint("DistanceX", 0, 1, 0, 2, Q("38 mm")))
sketch4.addConstraint(Sketcher.Constraint("DistanceX", 2, 2, 2, 1, Q("2 mm")))
sketch4.addConstraint(Sketcher.Constraint("DistanceY", 1, 1, 1, 2, Q("52 mm")))
pocket2 = body.newObject("PartDesign::Pocket", "Pocket001")
pocket2.Profile = sketch4
pocket2.Length = 6

doc.recompute()
